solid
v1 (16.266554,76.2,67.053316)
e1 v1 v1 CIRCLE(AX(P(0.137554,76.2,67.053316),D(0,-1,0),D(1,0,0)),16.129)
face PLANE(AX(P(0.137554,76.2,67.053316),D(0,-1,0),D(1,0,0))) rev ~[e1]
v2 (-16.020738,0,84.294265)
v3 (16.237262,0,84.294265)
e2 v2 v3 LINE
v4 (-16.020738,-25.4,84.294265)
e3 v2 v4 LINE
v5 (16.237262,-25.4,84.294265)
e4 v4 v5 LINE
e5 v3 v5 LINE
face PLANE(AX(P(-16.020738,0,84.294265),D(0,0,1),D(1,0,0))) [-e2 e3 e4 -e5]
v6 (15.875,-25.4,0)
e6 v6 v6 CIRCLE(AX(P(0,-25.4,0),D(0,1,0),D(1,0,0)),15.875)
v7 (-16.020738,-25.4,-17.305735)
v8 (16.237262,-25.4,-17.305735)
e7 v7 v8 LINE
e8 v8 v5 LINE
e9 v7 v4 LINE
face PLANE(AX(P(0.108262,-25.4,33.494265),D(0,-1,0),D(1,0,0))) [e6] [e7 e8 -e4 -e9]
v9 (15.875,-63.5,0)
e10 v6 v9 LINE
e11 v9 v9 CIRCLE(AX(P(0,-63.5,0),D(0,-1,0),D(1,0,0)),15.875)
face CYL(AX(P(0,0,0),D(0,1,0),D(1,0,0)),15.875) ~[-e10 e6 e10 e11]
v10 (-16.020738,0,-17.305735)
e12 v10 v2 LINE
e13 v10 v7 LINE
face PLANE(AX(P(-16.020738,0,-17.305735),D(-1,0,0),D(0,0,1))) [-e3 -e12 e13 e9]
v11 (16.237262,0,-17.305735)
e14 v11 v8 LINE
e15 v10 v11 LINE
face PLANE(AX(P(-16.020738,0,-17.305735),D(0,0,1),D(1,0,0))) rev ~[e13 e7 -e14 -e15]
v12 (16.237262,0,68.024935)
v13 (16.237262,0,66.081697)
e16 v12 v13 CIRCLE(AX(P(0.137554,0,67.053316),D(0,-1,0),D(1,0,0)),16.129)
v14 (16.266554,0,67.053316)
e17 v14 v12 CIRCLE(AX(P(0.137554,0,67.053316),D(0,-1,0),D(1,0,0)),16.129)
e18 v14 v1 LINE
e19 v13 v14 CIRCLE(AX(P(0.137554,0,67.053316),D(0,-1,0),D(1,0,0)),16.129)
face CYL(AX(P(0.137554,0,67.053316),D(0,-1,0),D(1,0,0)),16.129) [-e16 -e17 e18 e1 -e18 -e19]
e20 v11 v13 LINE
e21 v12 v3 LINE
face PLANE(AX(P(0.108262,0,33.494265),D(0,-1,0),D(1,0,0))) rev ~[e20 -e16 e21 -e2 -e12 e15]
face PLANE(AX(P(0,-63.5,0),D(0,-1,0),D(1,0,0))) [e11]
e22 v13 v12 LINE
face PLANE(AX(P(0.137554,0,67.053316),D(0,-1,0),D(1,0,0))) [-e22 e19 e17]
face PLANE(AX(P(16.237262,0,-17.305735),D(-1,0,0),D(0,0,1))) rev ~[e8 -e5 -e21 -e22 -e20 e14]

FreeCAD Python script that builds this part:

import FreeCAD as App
import Part
import Sketcher
from FreeCAD import Vector
Q = App.Units.Quantity

doc = App.newDocument("Part")
params = doc.addObject("Spreadsheet::Sheet", "Params")
for row, (alias, value) in enumerate([
    ("sketch1_diameter", "1.25 in"),
    ("pad1_length", "2.5 in"),
    ("sketch2_height", "4 in"),
    ("sketch2_width", "1.27 in"),
    ("pad2_length", "1 in"),
    ("sketch3_diameter", "1.27 in"),
    ("pad3_length", "3 in"),
], start=1):
    params.set(f"A{row}", alias)
    params.set(f"B{row}", "=" + value)
    params.setAlias(f"B{row}", alias)

body = doc.addObject("PartDesign::Body", "Body")

# Sketch on XZ plane
sketch1 = doc.addObject("Sketcher::SketchObject", "Sketch")
body.addObject(sketch1)
sketch1.AttachmentSupport = (doc.XZ_Plane, [""])
sketch1.MapMode = "FlatFace"
sketch1.addGeometry(Part.Circle(Vector(0, 0, 0), Vector(0, 0, 1), 16), False)
sketch1.addConstraint([
    Sketcher.Constraint("Coincident", 0, 3, -1, 1),
    Sketcher.Constraint("Diameter", 0, Q("1.25 in")),
])
sketch1.setExpression("Constraints[1]", "Params.sketch1_diameter")
pad1 = doc.addObject("PartDesign::Pad", "Pad")
body.addObject(pad1)
pad1.Profile = sketch1
pad1.setExpression("Length", "Params.pad1_length")

# Sketch on XZ plane
sketch2 = doc.addObject("Sketcher::SketchObject", "Sketch001")
body.addObject(sketch2)
sketch2.AttachmentSupport = (doc.XZ_Plane, [""])
sketch2.MapMode = "FlatFace"
sketch2.addGeometry([
    Part.LineSegment(Vector(-16, 84, 0), Vector(-16, -17, 0)),
    Part.LineSegment(Vector(-16, -17, 0), Vector(16, -17, 0)),
    Part.LineSegment(Vector(16, -17, 0), Vector(16, 84, 0)),
    Part.LineSegment(Vector(16, 84, 0), Vector(-16, 84, 0)),
], False)
sketch2.addConstraint([
    Sketcher.Constraint("Coincident", 0, 2, 1, 1),
    Sketcher.Constraint("Coincident", 1, 2, 2, 1),
    Sketcher.Constraint("Coincident", 2, 2, 3, 1),
    Sketcher.Constraint("Coincident", 3, 2, 0, 1),
    Sketcher.Constraint("Vertical", 0),
    Sketcher.Constraint("Horizontal", 1),
    Sketcher.Constraint("Vertical", 2),
    Sketcher.Constraint("Horizontal", 3),
    Sketcher.Constraint("DistanceY", 0, 2, 0, 1, Q("4 in")),
    Sketcher.Constraint("DistanceX", 1, 1, 1, 2, Q("1.27 in")),
    Sketcher.Constraint("DistanceX", 0, 2, -1, 1, Q("16.020738 mm")),
    Sketcher.Constraint("DistanceY", 0, 2, -1, 1, Q("17.305735 mm")),
])
sketch2.setExpression("Constraints[8]", "Params.sketch2_height")
sketch2.setExpression("Constraints[9]", "Params.sketch2_width")
pad2 = doc.addObject("PartDesign::Pad", "Pad001")
body.addObject(pad2)
pad2.Profile = sketch2
pad2.setExpression("Length", "Params.pad2_length")

# Sketch on XZ plane
sketch3 = doc.addObject("Sketcher::SketchObject", "Sketch002")
body.addObject(sketch3)
sketch3.AttachmentSupport = (doc.XZ_Plane, [""])
sketch3.MapMode = "FlatFace"
sketch3.addGeometry(Part.Circle(Vector(0, 67, 0), Vector(0, 0, 1), 16), False)
sketch3.addConstraint([
    Sketcher.Constraint("Diameter", 0, Q("1.27 in")),
    Sketcher.Constraint("DistanceX", -1, 1, 0, 3, Q("0.137554 mm")),
    Sketcher.Constraint("DistanceY", -1, 1, 0, 3, Q("67.053316 mm")),
])
sketch3.setExpression("Constraints[0]", "Params.sketch3_diameter")
pad3 = doc.addObject("PartDesign::Pad", "Pad002")
body.addObject(pad3)
pad3.Profile = sketch3
pad3.setExpression("Length", "Params.pad3_length")
pad3.Reversed = True

doc.recompute()
